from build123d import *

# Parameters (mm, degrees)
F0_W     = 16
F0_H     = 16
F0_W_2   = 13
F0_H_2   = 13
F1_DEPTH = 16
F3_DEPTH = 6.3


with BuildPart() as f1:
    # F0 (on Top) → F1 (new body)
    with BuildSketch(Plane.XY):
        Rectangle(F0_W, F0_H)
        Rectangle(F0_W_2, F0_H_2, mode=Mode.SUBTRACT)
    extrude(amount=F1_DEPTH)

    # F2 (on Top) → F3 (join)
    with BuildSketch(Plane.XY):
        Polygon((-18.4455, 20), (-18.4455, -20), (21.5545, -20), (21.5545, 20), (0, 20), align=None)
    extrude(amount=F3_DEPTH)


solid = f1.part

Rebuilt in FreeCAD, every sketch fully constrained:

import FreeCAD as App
import Part
import Sketcher

V = App.Vector

doc = App.newDocument("Part")
body = doc.addObject("PartDesign::Body", "Body")

# Sketch on XY plane
sketch1 = body.newObject("Sketcher::SketchObject", "Sketch")
sketch1.AttachmentSupport = (doc.getObject("XY_Plane"), [""])
sketch1.MapMode = "FlatFace"
sketch1.addGeometry([
    Part.LineSegment(V(-8, 8, 0), V(-8, -8, 0)),  # 0
    Part.LineSegment(V(-8, -8, 0), V(8, -8, 0)),  # 1
    Part.LineSegment(V(8, -8, 0), V(8, 8, 0)),  # 2
    Part.LineSegment(V(8, 8, 0), V(-8, 8, 0)),  # 3
    Part.LineSegment(V(6.5, -6.5, 0), V(-6.5, -6.5, 0)),  # 4
    Part.LineSegment(V(-6.5, -6.5, 0), V(-6.5, 6.5, 0)),  # 5
    Part.LineSegment(V(-6.5, 6.5, 0), V(6.5, 6.5, 0)),  # 6
    Part.LineSegment(V(6.5, 6.5, 0), V(6.5, -6.5, 0)),  # 7
], False)
sketch1.addConstraint([
    Sketcher.Constraint("Coincident", 0, 2, 1, 1),
    Sketcher.Constraint("Coincident", 1, 2, 2, 1),
    Sketcher.Constraint("Coincident", 2, 2, 3, 1),
    Sketcher.Constraint("Coincident", 3, 2, 0, 1),
    Sketcher.Constraint("Coincident", 4, 2, 5, 1),
    Sketcher.Constraint("Coincident", 5, 2, 6, 1),
    Sketcher.Constraint("Coincident", 6, 2, 7, 1),
    Sketcher.Constraint("Coincident", 7, 2, 4, 1),
    Sketcher.Constraint("Vertical", 0),
    Sketcher.Constraint("Horizontal", 1),
    Sketcher.Constraint("Vertical", 2),
    Sketcher.Constraint("Horizontal", 3),
    Sketcher.Constraint("Horizontal", 4),
    Sketcher.Constraint("Vertical", 5),
    Sketcher.Constraint("Horizontal", 6),
    Sketcher.Constraint("Vertical", 7),
    Sketcher.Constraint("Symmetric", 0, 2, 2, 2, -1, 1),
    Sketcher.Constraint("Symmetric", 4, 2, 6, 2, -1, 1),
    Sketcher.Constraint("Equal", 3, 0),
    Sketcher.Constraint("Equal", 6, 5),
    Sketcher.Constraint("DistanceX", 1, 1, 1, 2, 16.0),
    Sketcher.Constraint("DistanceX", 4, 2, 4, 1, 13.0),
])
pad1 = body.newObject("PartDesign::Pad", "Pad")
pad1.Profile = sketch1
pad1.Length = 16

# Sketch on XY plane
sketch2 = body.newObject("Sketcher::SketchObject", "Sketch001")
sketch2.AttachmentSupport = (doc.getObject("XY_Plane"), [""])
sketch2.MapMode = "FlatFace"
sketch2.addGeometry([
    Part.LineSegment(V(-18.4455, 20, 0), V(-18.4455, -20, 0)),
    Part.LineSegment(V(-18.4455, -20, 0), V(21.5545, -20, 0)),
    Part.LineSegment(V(21.5545, -20, 0), V(21.5545, 20, 0)),
    Part.LineSegment(V(21.5545, 20, 0), V(-18.4455, 20, 0)),
], False)
sketch2.addConstraint([
    Sketcher.Constraint("Coincident", 0, 2, 1, 1),
    Sketcher.Constraint("Coincident", 1, 2, 2, 1),
    Sketcher.Constraint("Coincident", 2, 2, 3, 1),
    Sketcher.Constraint("Coincident", 3, 2, 0, 1),
    Sketcher.Constraint("Vertical", 0),
    Sketcher.Constraint("Horizontal", 1),
    Sketcher.Constraint("Vertical", 2),
    Sketcher.Constraint("Horizontal", 3),
    Sketcher.Constraint("Equal", 3, 0),
    Sketcher.Constraint("DistanceX", 1, 1, 1, 2, 40.0),
    Sketcher.Constraint("DistanceY", 0, 2, -1, 1, 20.0),
    Sketcher.Constraint("DistanceX", 0, 2, -1, 1, 18.4455),
])
pad2 = body.newObject("PartDesign::Pad", "Pad001")
pad2.Profile = sketch2
pad2.Length = 6.3

doc.recompute()
